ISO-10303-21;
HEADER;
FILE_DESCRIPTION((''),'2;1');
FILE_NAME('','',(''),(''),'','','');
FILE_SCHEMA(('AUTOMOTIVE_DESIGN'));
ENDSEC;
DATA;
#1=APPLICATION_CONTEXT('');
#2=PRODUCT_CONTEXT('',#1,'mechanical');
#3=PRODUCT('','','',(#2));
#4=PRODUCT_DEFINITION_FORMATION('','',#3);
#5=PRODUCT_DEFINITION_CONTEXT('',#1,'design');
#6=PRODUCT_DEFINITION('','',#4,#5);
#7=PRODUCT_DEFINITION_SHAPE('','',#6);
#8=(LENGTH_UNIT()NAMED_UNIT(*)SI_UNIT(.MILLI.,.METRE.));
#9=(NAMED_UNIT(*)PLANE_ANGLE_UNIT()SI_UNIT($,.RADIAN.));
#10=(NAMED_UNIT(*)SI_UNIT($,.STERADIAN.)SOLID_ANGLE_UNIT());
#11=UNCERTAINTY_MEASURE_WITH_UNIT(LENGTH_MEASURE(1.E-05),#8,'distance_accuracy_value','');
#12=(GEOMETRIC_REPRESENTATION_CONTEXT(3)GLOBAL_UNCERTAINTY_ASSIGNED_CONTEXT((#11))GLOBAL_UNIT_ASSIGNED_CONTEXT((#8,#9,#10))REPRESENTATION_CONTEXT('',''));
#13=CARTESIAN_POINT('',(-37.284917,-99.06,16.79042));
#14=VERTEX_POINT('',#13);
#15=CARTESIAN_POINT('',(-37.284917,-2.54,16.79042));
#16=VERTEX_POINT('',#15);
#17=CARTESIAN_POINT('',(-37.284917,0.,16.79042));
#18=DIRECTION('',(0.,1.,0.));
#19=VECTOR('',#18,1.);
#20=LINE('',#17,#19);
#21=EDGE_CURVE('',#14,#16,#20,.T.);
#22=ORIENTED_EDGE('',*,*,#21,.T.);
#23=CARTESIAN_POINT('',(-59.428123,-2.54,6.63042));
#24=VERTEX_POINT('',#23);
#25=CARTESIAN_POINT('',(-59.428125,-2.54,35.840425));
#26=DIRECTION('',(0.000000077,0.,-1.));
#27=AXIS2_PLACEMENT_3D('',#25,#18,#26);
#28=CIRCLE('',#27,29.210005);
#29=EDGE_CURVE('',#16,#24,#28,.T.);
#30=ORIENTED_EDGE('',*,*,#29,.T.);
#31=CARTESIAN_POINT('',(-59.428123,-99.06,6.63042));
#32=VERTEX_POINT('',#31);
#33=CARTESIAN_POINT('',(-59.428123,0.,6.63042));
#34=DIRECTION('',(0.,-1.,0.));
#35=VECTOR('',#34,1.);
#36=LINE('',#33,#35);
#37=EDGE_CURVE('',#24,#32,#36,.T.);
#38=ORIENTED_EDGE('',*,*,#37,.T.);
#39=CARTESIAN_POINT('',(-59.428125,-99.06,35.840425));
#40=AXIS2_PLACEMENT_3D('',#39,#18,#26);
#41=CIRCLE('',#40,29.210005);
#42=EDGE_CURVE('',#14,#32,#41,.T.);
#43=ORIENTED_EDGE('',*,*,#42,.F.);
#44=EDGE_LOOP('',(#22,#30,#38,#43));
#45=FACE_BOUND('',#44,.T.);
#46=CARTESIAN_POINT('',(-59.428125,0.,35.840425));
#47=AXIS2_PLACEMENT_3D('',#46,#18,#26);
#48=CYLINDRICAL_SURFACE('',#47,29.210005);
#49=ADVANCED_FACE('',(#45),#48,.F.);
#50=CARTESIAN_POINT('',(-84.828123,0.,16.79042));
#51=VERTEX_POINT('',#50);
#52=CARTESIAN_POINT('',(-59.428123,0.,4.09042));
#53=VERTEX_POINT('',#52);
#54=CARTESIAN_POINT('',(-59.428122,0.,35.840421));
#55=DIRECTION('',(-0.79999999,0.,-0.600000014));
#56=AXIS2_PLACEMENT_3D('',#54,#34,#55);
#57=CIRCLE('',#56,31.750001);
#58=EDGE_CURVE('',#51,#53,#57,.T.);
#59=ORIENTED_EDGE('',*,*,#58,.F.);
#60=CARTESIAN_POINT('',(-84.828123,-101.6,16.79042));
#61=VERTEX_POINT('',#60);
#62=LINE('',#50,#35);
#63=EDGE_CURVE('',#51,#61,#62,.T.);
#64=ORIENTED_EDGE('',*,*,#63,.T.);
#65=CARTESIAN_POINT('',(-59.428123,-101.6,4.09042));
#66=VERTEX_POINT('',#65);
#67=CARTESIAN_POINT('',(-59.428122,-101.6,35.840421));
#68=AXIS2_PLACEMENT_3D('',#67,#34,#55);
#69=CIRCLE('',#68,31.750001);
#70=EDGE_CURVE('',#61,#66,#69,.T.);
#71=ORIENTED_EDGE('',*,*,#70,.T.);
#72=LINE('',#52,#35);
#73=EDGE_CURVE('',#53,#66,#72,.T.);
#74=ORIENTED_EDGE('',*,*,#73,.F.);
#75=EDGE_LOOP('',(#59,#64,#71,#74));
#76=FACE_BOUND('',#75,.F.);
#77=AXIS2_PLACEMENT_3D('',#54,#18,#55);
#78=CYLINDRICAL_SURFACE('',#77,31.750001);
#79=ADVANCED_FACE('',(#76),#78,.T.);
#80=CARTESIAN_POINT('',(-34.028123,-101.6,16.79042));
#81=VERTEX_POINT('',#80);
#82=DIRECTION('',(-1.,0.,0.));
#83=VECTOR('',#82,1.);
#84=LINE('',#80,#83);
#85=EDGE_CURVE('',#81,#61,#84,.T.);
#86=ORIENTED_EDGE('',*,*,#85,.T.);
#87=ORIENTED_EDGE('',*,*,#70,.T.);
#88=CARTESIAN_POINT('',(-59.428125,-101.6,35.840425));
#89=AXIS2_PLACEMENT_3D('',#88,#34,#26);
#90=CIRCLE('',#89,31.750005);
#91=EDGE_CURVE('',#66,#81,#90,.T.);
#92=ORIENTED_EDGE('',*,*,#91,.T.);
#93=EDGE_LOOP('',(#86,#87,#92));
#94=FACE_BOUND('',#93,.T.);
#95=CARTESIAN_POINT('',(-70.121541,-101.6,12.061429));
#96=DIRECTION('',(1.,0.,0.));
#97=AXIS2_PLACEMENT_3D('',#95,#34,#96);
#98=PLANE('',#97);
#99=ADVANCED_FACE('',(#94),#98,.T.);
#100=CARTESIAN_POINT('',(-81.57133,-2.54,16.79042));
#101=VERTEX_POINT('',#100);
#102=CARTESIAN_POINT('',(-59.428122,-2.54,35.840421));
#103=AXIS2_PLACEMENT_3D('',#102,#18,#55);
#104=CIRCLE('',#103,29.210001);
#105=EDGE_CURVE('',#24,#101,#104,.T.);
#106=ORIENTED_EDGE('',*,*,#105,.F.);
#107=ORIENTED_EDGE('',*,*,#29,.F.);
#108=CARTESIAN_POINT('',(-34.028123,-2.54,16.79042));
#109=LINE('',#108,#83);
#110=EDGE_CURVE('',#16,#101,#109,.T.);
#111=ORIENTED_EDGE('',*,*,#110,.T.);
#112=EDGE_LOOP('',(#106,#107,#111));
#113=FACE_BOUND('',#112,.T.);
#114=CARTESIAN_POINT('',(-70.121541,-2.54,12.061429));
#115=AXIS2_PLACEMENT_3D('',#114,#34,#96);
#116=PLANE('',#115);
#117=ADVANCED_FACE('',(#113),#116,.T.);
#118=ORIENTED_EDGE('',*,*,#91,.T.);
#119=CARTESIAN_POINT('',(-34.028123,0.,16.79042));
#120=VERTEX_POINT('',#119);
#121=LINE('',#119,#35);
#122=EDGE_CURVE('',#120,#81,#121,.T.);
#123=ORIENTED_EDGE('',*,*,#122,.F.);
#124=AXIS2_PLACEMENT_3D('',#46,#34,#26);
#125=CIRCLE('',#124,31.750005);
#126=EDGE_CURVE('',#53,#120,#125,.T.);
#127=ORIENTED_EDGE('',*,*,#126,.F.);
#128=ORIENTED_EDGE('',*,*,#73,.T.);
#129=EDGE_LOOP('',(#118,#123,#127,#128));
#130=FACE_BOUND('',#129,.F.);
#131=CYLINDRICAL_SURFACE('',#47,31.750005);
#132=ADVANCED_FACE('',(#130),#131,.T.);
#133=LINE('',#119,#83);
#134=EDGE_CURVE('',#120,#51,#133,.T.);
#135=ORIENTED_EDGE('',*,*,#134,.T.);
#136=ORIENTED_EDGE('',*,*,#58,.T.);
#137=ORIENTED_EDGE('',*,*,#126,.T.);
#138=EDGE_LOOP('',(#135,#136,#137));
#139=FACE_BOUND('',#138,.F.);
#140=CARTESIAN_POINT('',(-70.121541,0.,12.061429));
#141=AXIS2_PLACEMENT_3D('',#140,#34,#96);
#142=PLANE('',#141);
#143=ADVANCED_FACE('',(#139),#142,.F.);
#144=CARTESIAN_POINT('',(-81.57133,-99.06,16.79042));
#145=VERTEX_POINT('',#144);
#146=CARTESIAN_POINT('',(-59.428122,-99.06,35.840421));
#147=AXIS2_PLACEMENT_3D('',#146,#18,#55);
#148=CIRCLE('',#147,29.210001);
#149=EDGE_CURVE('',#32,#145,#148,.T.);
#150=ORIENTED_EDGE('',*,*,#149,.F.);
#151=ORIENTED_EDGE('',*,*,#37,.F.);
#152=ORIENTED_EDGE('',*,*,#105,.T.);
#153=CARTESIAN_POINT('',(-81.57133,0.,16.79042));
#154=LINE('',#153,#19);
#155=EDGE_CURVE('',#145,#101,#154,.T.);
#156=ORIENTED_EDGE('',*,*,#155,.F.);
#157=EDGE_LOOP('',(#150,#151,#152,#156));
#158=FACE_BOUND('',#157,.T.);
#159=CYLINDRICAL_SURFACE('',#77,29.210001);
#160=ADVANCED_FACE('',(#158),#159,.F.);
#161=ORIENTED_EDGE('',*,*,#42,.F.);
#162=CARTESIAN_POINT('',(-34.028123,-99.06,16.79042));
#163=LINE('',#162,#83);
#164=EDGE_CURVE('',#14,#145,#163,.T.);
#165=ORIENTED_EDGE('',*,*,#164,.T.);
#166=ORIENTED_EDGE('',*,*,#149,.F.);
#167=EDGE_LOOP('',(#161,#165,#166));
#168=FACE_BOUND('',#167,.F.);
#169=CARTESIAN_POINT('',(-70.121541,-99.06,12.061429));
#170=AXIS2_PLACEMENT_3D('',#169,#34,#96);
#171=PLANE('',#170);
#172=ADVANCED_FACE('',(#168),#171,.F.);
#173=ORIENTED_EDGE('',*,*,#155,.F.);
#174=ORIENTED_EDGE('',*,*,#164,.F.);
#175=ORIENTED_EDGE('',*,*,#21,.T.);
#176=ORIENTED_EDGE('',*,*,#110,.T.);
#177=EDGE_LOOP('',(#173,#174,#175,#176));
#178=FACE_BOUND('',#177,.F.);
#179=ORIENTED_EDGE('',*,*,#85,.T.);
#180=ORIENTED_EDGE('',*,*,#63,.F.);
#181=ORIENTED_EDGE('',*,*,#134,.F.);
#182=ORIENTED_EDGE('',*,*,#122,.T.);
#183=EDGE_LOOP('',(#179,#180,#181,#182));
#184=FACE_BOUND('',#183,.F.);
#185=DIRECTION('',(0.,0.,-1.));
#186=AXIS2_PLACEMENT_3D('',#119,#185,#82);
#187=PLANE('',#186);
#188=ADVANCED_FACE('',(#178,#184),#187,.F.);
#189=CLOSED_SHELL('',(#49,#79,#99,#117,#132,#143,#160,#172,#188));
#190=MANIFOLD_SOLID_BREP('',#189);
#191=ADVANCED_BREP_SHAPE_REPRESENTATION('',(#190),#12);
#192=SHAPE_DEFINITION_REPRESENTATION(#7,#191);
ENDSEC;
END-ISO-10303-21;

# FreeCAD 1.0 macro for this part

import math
import FreeCAD as App
import Part
import Sketcher
Q = App.Units.Quantity


def faces_at(feature, points):
    """Names of the faces that lie closest to the given points."""
    faces = feature.Shape.Faces
    near = lambda p: min(range(len(faces)), key=lambda i: faces[i].distToShape(Part.Vertex(*p))[0])
    return sorted({f"Face{near(p) + 1}" for p in points})

doc = App.newDocument("Part")
params = doc.addObject("Spreadsheet::Sheet", "Params")
for row, (alias, value) in enumerate([
    ("sketch1_width", "2 in"),
    ("sketch1_radius", "1.25 in"),
    ("sketch1_radius2", "1.2500002 in"),
    ("pad1_length", "4 in"),
    ("thickness_wall", "0.1 in"),
], start=1):
    params.set(f"A{row}", alias)
    params.set(f"B{row}", "=" + value)
    params.setAlias(f"B{row}", alias)

body = doc.addObject("PartDesign::Body", "Body")

# Sketch on XZ plane
sketch1 = body.newObject("Sketcher::SketchObject", "Sketch")
sketch1.AttachmentSupport = (doc.getObject("XZ_Plane"), [""])
sketch1.MapMode = "FlatFace"
sketch1.addGeometry([
    Part.ArcOfCircle(Part.Circle(App.Vector(-59.428122, 35.840421, 0), App.Vector(0, 0, 1), 31.750001), math.radians(-143.130101), math.radians(-90.000001)),
    Part.ArcOfCircle(Part.Circle(App.Vector(-59.428125, 35.840425, 0), App.Vector(0, 0, 1), 31.750005), math.radians(-89.999996), math.radians(-36.869902)),
    Part.LineSegment(App.Vector(-34.028123, 16.79042, 0), App.Vector(-84.828123, 16.79042, 0)),
], False)
sketch1.addConstraint([
    Sketcher.Constraint("Tangent", 0, 2, 1, 1),
    Sketcher.Constraint("Coincident", 1, 2, 2, 1),
    Sketcher.Constraint("Coincident", 2, 2, 0, 1),
    Sketcher.Constraint("Horizontal", 2),
    Sketcher.Constraint("DistanceX", 2, 2, 2, 1, Q("2 in")),
    Sketcher.Constraint("Radius", 0, Q("1.25 in")),
    Sketcher.Constraint("Radius", 1, Q("1.2500002 in")),
    Sketcher.Constraint("DistanceX", 0, 2, 1, 2, Q("1 in")),
    Sketcher.Constraint("DistanceY", -1, 1, 0, 3, Q("35.840421 mm")),
    Sketcher.Constraint("DistanceX", 0, 3, -1, 1, Q("59.428122 mm")),
])
sketch1.setExpression("Constraints[4]", "Params.sketch1_width")
sketch1.setExpression("Constraints[5]", "Params.sketch1_radius")
sketch1.setExpression("Constraints[6]", "Params.sketch1_radius2")
pad1 = body.newObject("PartDesign::Pad", "Pad")
pad1.Profile = sketch1
pad1.setExpression("Length", "Params.pad1_length")
doc.recompute()

thickness = body.newObject("PartDesign::Thickness", "Thickness")
thickness.Base = (pad1, faces_at(pad1, [(-59.428, -50.8, 16.79)]))
thickness.setExpression("Value", "Params.thickness_wall")
thickness.Reversed = True
thickness.Join = "Arc"

doc.recompute()
